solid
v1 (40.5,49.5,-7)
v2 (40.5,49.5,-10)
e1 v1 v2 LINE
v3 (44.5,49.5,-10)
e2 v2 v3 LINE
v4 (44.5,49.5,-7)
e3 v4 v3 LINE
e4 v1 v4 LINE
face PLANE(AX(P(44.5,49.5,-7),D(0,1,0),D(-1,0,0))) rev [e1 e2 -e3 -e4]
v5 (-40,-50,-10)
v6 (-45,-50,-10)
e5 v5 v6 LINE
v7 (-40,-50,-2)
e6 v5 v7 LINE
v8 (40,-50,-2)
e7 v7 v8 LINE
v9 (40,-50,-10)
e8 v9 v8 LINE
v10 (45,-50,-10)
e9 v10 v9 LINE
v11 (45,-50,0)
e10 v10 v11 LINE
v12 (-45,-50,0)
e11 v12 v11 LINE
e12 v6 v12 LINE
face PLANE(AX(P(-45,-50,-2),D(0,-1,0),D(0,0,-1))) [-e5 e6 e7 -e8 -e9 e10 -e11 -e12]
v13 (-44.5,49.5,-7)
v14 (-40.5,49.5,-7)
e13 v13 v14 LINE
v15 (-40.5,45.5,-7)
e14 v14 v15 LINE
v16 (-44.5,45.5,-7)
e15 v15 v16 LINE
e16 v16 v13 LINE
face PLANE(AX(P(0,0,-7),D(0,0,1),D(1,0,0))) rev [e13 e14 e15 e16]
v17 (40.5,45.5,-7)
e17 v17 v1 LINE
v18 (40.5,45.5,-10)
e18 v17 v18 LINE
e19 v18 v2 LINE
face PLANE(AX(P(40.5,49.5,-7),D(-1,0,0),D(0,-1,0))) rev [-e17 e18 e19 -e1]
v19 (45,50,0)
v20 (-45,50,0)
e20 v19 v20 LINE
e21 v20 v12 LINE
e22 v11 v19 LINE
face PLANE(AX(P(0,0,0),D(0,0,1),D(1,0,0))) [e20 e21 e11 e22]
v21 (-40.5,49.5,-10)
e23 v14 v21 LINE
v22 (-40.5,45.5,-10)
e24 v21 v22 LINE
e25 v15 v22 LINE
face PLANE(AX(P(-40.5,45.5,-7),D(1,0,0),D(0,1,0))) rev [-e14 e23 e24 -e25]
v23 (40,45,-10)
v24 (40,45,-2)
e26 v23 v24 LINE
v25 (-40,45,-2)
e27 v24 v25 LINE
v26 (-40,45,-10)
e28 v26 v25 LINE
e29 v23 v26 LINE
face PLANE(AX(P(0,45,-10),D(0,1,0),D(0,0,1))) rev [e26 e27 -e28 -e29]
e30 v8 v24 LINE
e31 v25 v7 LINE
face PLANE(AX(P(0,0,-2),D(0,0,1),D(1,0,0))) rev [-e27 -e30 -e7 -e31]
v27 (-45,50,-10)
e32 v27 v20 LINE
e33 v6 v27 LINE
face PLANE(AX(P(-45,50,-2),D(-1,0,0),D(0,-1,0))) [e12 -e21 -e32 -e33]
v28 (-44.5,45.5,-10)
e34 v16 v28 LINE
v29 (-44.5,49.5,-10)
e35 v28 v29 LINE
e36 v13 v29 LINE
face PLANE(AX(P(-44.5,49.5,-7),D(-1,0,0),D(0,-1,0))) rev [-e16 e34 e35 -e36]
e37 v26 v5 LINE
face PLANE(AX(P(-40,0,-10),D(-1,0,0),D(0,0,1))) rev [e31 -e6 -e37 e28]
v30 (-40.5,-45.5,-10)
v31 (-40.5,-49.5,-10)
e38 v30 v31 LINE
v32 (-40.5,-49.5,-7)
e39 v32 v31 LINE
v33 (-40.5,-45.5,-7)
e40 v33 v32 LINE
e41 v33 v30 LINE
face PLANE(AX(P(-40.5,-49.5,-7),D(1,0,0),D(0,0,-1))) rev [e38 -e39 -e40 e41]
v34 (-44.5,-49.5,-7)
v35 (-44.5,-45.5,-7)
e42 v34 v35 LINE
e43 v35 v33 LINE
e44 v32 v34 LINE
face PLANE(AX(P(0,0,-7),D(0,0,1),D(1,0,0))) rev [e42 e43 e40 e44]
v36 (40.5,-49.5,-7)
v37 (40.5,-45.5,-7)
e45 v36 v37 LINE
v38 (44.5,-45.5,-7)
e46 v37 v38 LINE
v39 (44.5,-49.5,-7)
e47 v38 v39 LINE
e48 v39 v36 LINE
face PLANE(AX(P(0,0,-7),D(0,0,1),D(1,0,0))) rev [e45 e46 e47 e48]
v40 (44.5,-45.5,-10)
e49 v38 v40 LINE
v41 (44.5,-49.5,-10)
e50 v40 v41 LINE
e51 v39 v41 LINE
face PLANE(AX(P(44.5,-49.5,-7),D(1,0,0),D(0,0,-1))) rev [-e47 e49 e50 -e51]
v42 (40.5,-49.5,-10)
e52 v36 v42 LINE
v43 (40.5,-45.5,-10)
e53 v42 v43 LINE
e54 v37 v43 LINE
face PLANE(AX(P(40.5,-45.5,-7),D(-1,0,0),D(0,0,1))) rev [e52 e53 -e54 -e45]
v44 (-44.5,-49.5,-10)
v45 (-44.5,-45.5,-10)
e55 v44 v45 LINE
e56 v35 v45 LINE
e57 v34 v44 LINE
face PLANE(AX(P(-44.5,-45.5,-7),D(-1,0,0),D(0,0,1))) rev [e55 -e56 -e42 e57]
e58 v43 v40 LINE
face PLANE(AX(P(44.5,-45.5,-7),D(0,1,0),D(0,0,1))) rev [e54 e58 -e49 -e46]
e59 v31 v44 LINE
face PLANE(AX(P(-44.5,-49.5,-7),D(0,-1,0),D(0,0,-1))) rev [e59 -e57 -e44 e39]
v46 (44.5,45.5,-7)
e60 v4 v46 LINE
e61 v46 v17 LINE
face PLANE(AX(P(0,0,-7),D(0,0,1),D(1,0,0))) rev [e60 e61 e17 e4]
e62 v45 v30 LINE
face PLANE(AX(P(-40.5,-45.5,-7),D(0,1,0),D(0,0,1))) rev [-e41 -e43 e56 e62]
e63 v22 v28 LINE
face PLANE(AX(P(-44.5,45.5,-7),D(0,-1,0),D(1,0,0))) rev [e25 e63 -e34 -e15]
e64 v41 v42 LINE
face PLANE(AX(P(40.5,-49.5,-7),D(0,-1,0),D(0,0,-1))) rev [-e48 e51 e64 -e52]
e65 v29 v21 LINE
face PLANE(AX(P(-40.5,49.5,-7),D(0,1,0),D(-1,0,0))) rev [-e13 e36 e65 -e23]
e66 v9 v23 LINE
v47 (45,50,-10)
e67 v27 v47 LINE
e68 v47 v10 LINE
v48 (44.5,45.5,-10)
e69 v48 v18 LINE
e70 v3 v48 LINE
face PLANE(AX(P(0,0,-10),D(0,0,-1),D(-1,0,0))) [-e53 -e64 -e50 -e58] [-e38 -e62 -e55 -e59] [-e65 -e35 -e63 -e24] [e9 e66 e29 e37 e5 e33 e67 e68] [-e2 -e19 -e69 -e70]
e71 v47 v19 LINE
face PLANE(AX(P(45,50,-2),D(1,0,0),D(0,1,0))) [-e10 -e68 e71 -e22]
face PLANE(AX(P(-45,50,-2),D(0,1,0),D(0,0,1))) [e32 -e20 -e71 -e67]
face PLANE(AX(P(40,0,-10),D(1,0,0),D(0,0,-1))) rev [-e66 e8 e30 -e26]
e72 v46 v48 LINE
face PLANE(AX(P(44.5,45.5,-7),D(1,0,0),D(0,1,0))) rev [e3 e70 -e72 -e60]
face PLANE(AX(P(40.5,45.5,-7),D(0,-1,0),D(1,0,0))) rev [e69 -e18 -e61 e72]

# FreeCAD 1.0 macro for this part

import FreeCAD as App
import Part
import Sketcher

V = App.Vector

doc = App.newDocument("Part")
params = doc.addObject("Spreadsheet::Sheet", "Params")
for row, (alias, value) in enumerate([
    ("sketch1_width", "90 mm"),
    ("sketch1_height", "100 mm"),
    ("pad1_length", "2 mm"),
    ("sketch2_width", "5 mm"),
    ("sketch2_width2", "80 mm"),
    ("sketch2_height", "100 mm"),
    ("sketch2_height2", "95 mm"),
    ("pad2_length", "8 mm"),
    ("sketch3_width", "4 mm"),
    ("pocket1_length", "3 mm"),
], start=1):
    params.set(f"A{row}", alias)
    params.set(f"B{row}", "=" + value)
    params.setAlias(f"B{row}", alias)

body = doc.addObject("PartDesign::Body", "Body")

sketch1 = doc.addObject("Sketcher::SketchObject", "Sketch")
body.addObject(sketch1)
sketch1.AttachmentSupport = (doc.XY_Plane, [""])
sketch1.MapMode = "FlatFace"
sketch1.addGeometry([
    Part.LineSegment(V(-45, 50, 0), V(-45, -50, 0)),
    Part.LineSegment(V(-45, -50, 0), V(45, -50, 0)),
    Part.LineSegment(V(45, -50, 0), V(45, 50, 0)),
    Part.LineSegment(V(45, 50, 0), V(-45, 50, 0)),
], False)
sketch1.addConstraint([
    Sketcher.Constraint("Coincident", 0, 2, 1, 1),
    Sketcher.Constraint("Coincident", 1, 2, 2, 1),
    Sketcher.Constraint("Coincident", 2, 2, 3, 1),
    Sketcher.Constraint("Coincident", 3, 2, 0, 1),
    Sketcher.Constraint("Vertical", 0),
    Sketcher.Constraint("Horizontal", 1),
    Sketcher.Constraint("Vertical", 2),
    Sketcher.Constraint("Horizontal", 3),
    Sketcher.Constraint("Symmetric", 0, 2, 2, 2, -1, 1),
    Sketcher.Constraint("DistanceX", 1, 1, 1, 2, 90.0),
    Sketcher.Constraint("DistanceY", 0, 2, 0, 1, 100.0),
])
sketch1.setExpression("Constraints[9]", "Params.sketch1_width")
sketch1.setExpression("Constraints[10]", "Params.sketch1_height")
pad1 = doc.addObject("PartDesign::Pad", "Pad")
body.addObject(pad1)
pad1.Profile = sketch1
pad1.setExpression("Length", "Params.pad1_length")
pad1.Reversed = True

sketch2 = doc.addObject("Sketcher::SketchObject", "Sketch001")
body.addObject(sketch2)
sketch2.AttachmentSupport = (doc.XY_Plane, [""])
sketch2.MapMode = "FlatFace"
sketch2.AttachmentOffset = App.Placement(V(0, 0, -2), App.Rotation())
sketch2.addGeometry([
    Part.LineSegment(V(45, 50, 0), V(45, -50, 0)),
    Part.LineSegment(V(45, -50, 0), V(40, -50, 0)),
    Part.LineSegment(V(40, -50, 0), V(40, 45, 0)),
    Part.LineSegment(V(40, 45, 0), V(-40, 45, 0)),
    Part.LineSegment(V(-40, 45, 0), V(-40, -50, 0)),
    Part.LineSegment(V(-40, -50, 0), V(-45, -50, 0)),
    Part.LineSegment(V(-45, -50, 0), V(-45, 50, 0)),
    Part.LineSegment(V(-45, 50, 0), V(45, 50, 0)),
], False)
sketch2.addConstraint([
    Sketcher.Constraint("Coincident", 0, 2, 1, 1),
    Sketcher.Constraint("Coincident", 1, 2, 2, 1),
    Sketcher.Constraint("Coincident", 2, 2, 3, 1),
    Sketcher.Constraint("Coincident", 3, 2, 4, 1),
    Sketcher.Constraint("Coincident", 4, 2, 5, 1),
    Sketcher.Constraint("Coincident", 5, 2, 6, 1),
    Sketcher.Constraint("Coincident", 6, 2, 7, 1),
    Sketcher.Constraint("Coincident", 7, 2, 0, 1),
    Sketcher.Constraint("Vertical", 0),
    Sketcher.Constraint("Horizontal", 1),
    Sketcher.Constraint("Vertical", 2),
    Sketcher.Constraint("Horizontal", 3),
    Sketcher.Constraint("Vertical", 4),
    Sketcher.Constraint("Horizontal", 5),
    Sketcher.Constraint("Vertical", 6),
    Sketcher.Constraint("Horizontal", 7),
    Sketcher.Constraint("Symmetric", 0, 2, 6, 2, -1, 1),
    Sketcher.Constraint("Symmetric", 1, 2, 4, 2, -2),
    Sketcher.Constraint("DistanceX", 1, 2, 1, 1, 5.0),
    Sketcher.Constraint("DistanceX", 3, 2, 3, 1, 80.0),
    Sketcher.Constraint("DistanceY", 0, 2, 0, 1, 100.0),
    Sketcher.Constraint("DistanceY", 2, 1, 2, 2, 95.0),
])
sketch2.setExpression("Constraints[18]", "Params.sketch2_width")
sketch2.setExpression("Constraints[19]", "Params.sketch2_width2")
sketch2.setExpression("Constraints[20]", "Params.sketch2_height")
sketch2.setExpression("Constraints[21]", "Params.sketch2_height2")
pad2 = doc.addObject("PartDesign::Pad", "Pad001")
body.addObject(pad2)
pad2.Profile = sketch2
pad2.setExpression("Length", "Params.pad2_length")
pad2.Reversed = True

sketch3 = doc.addObject("Sketcher::SketchObject", "Sketch002")
body.addObject(sketch3)
sketch3.AttachmentSupport = (doc.XY_Plane, [""])
sketch3.MapMode = "FlatFace"
sketch3.AttachmentOffset = App.Placement(V(0, 0, -10), App.Rotation())
sketch3.addGeometry([
    Part.LineSegment(V(44.5, 49.5, 0), V(44.5, 45.5, 0)),
    Part.LineSegment(V(44.5, 45.5, 0), V(40.5, 45.5, 0)),
    Part.LineSegment(V(40.5, 45.5, 0), V(40.5, 49.5, 0)),
    Part.LineSegment(V(40.5, 49.5, 0), V(44.5, 49.5, 0)),
    Part.LineSegment(V(-40.5, 49.5, 0), V(-40.5, 45.5, 0)),
    Part.LineSegment(V(-40.5, 45.5, 0), V(-44.5, 45.5, 0)),
    Part.LineSegment(V(-44.5, 45.5, 0), V(-44.5, 49.5, 0)),
    Part.LineSegment(V(-44.5, 49.5, 0), V(-40.5, 49.5, 0)),
    Part.LineSegment(V(-40.5, -45.5, 0), V(-40.5, -49.5, 0)),
    Part.LineSegment(V(-40.5, -49.5, 0), V(-44.5, -49.5, 0)),
    Part.LineSegment(V(-44.5, -49.5, 0), V(-44.5, -45.5, 0)),
    Part.LineSegment(V(-44.5, -45.5, 0), V(-40.5, -45.5, 0)),
    Part.LineSegment(V(44.5, -45.5, 0), V(44.5, -49.5, 0)),
    Part.LineSegment(V(44.5, -49.5, 0), V(40.5, -49.5, 0)),
    Part.LineSegment(V(40.5, -49.5, 0), V(40.5, -45.5, 0)),
    Part.LineSegment(V(40.5, -45.5, 0), V(44.5, -45.5, 0)),
], False)
sketch3.addConstraint([
    Sketcher.Constraint("Coincident", 0, 2, 1, 1),
    Sketcher.Constraint("Coincident", 1, 2, 2, 1),
    Sketcher.Constraint("Coincident", 2, 2, 3, 1),
    Sketcher.Constraint("Coincident", 3, 2, 0, 1),
    Sketcher.Constraint("Coincident", 4, 2, 5, 1),
    Sketcher.Constraint("Coincident", 5, 2, 6, 1),
    Sketcher.Constraint("Coincident", 6, 2, 7, 1),
    Sketcher.Constraint("Coincident", 7, 2, 4, 1),
    Sketcher.Constraint("Coincident", 8, 2, 9, 1),
    Sketcher.Constraint("Coincident", 9, 2, 10, 1),
    Sketcher.Constraint("Coincident", 10, 2, 11, 1),
    Sketcher.Constraint("Coincident", 11, 2, 8, 1),
    Sketcher.Constraint("Coincident", 12, 2, 13, 1),
    Sketcher.Constraint("Coincident", 13, 2, 14, 1),
    Sketcher.Constraint("Coincident", 14, 2, 15, 1),
    Sketcher.Constraint("Coincident", 15, 2, 12, 1),
    Sketcher.Constraint("Vertical", 0),
    Sketcher.Constraint("Horizontal", 1),
    Sketcher.Constraint("Vertical", 2),
    Sketcher.Constraint("Horizontal", 3),
    Sketcher.Constraint("Vertical", 4),
    Sketcher.Constraint("Horizontal", 5),
    Sketcher.Constraint("Vertical", 6),
    Sketcher.Constraint("Horizontal", 7),
    Sketcher.Constraint("Vertical", 8),
    Sketcher.Constraint("Horizontal", 9),
    Sketcher.Constraint("Vertical", 10),
    Sketcher.Constraint("Horizontal", 11),
    Sketcher.Constraint("Vertical", 12),
    Sketcher.Constraint("Horizontal", 13),
    Sketcher.Constraint("Vertical", 14),
    Sketcher.Constraint("Horizontal", 15),
    Sketcher.Constraint("Symmetric", 2, 2, 8, 2, -1, 1),
    Sketcher.Constraint("Symmetric", 0, 2, 10, 2, -1, 1),
    Sketcher.Constraint("Symmetric", 6, 2, 12, 2, -1, 1),
    Sketcher.Constraint("Symmetric", 4, 2, 14, 2, -1, 1),
    Sketcher.Constraint("Symmetric", 1, 2, 4, 2, -2),
    Sketcher.Constraint("Symmetric", 3, 2, 6, 2, -2),
    Sketcher.Constraint("Equal", 15, 0),
    Sketcher.Constraint("DistanceX", 1, 2, 1, 1, 4.0),
    Sketcher.Constraint("DistanceX", 4, 2, 1, 2, 81.0),
    Sketcher.Constraint("DistanceY", 8, 2, 4, 2, 95.0),
])
sketch3.setExpression("Constraints[39]", "Params.sketch3_width")
pocket1 = doc.addObject("PartDesign::Pocket", "Pocket")
body.addObject(pocket1)
pocket1.Profile = sketch3
pocket1.setExpression("Length", "Params.pocket1_length")
pocket1.Reversed = True

doc.recompute()
